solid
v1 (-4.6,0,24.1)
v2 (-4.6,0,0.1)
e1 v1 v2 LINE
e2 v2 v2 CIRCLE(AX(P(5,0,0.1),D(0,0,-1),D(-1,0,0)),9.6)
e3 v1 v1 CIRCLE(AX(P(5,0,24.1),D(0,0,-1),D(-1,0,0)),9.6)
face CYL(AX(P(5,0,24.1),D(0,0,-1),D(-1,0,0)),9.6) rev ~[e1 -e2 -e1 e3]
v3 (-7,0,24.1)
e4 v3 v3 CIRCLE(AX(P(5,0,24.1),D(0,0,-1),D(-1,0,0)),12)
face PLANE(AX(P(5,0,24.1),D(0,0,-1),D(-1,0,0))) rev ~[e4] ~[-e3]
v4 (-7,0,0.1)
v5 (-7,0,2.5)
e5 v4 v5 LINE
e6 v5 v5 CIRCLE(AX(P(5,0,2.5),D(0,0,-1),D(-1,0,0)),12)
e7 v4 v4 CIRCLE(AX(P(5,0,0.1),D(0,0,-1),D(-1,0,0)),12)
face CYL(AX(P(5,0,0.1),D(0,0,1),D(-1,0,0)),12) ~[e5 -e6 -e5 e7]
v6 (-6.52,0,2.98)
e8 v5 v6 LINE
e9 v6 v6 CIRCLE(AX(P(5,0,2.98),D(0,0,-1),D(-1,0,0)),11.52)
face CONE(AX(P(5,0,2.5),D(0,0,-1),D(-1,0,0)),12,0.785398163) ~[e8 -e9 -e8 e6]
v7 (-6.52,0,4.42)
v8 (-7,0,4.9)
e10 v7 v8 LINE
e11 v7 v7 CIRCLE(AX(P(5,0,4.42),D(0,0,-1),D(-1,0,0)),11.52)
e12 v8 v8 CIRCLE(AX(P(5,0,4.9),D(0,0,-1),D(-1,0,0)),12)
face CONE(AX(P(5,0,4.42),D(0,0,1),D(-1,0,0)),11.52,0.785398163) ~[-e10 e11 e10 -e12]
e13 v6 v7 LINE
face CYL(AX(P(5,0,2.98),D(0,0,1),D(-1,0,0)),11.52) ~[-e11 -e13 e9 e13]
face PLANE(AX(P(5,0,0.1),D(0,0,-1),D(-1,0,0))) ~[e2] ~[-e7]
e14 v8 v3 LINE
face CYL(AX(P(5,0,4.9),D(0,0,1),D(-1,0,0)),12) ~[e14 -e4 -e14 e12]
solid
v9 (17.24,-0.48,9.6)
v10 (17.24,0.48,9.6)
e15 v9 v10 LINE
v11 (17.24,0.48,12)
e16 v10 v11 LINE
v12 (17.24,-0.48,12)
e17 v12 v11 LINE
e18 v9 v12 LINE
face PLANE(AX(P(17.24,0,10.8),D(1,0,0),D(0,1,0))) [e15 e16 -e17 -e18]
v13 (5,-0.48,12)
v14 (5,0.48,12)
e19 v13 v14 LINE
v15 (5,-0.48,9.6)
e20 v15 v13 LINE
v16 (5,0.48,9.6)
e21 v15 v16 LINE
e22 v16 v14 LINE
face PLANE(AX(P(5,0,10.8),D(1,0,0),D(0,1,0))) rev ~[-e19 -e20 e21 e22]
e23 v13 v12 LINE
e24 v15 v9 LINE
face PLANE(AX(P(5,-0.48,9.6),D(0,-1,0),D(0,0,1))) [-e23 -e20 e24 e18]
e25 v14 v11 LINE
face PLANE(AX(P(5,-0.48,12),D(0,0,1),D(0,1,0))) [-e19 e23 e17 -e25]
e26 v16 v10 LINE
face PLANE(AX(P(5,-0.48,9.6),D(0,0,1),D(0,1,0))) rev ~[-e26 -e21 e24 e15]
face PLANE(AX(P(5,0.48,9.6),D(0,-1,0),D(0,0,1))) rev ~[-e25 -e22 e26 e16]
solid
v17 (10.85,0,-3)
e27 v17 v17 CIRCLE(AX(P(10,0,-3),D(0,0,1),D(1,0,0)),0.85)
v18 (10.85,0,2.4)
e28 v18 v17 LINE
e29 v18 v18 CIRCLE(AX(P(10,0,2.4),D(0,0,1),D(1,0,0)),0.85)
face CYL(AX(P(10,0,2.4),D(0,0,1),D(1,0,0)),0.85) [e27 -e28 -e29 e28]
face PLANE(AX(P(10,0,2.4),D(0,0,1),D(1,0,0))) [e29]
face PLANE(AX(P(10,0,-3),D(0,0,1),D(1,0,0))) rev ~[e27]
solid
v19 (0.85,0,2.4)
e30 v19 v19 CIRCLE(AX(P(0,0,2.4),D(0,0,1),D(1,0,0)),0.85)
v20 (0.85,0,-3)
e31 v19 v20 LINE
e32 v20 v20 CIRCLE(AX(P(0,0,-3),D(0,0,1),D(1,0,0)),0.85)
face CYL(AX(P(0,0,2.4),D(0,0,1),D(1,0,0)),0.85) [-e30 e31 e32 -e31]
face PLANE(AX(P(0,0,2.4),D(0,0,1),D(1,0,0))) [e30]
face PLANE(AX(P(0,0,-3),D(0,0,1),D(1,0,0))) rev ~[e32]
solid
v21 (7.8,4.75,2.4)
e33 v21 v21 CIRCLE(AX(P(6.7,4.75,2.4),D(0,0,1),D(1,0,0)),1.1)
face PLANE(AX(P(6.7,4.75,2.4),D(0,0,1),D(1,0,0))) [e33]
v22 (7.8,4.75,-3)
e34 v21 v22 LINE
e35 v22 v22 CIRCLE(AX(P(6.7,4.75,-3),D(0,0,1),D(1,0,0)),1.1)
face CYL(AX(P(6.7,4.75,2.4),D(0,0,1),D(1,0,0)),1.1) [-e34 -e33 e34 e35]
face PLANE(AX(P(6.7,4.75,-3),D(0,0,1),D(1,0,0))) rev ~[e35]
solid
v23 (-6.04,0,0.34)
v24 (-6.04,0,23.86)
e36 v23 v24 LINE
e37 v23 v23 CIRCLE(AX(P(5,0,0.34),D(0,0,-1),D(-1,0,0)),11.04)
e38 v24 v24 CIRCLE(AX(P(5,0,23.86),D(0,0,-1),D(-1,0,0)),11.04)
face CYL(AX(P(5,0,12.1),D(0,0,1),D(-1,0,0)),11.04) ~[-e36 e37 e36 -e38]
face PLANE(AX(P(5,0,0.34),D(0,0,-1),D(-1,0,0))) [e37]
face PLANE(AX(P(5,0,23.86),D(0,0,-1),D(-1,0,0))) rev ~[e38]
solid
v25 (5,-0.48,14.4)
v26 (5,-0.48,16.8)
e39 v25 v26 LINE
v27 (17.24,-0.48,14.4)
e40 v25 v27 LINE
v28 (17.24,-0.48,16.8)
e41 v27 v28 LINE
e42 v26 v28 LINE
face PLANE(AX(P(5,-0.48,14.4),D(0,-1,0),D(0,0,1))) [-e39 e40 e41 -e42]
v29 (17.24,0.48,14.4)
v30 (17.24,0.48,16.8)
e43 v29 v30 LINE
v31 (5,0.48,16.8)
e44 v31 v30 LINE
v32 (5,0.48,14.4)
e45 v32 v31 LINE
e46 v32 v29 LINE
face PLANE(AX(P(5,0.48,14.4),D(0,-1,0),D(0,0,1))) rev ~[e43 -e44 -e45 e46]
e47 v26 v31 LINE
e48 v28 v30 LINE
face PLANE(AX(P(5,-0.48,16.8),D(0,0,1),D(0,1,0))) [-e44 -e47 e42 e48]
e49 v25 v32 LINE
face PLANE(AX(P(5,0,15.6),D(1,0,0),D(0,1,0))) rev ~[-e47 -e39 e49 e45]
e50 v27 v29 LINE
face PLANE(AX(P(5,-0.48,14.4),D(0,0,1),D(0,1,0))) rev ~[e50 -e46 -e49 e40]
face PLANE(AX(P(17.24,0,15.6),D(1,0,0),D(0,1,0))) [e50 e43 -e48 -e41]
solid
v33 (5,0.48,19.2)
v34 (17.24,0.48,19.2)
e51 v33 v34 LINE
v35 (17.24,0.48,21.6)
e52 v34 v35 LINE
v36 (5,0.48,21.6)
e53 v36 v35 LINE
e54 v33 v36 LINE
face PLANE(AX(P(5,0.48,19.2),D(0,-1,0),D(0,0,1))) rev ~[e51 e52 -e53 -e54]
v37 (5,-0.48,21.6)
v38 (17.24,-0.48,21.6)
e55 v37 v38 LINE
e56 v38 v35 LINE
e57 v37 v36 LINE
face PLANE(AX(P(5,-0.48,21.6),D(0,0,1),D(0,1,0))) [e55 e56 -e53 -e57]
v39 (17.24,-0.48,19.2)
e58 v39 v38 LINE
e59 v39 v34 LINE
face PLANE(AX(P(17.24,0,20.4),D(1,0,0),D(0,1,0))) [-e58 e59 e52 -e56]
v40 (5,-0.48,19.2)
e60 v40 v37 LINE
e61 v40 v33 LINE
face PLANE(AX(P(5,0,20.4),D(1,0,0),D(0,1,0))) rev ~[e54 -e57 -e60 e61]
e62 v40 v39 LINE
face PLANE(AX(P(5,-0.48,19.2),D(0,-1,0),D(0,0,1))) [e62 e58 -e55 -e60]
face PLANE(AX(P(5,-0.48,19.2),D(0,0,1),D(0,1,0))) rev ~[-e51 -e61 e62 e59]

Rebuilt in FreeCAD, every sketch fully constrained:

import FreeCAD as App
import Part
import Sketcher
from FreeCAD import Vector

doc = App.newDocument("Part")
body = doc.addObject("PartDesign::Body", "Body")

sketch1 = body.newObject("Sketcher::SketchObject", "Sketch")
sketch1.AttachmentSupport = (doc.getObject("XZ_Plane"), [""])
sketch1.MapMode = "FlatFace"
sketch1.addGeometry(Part.LineSegment(Vector(-7, 2.5, 0), Vector(-7, 0.1, 0)), False)
sketch1.addGeometry(Part.LineSegment(Vector(-7, 0.1, 0), Vector(-4.6, 0.1, 0)), False)
sketch1.addGeometry(Part.LineSegment(Vector(-4.6, 0.1, 0), Vector(-4.6, 24.1, 0)), False)
sketch1.addGeometry(Part.LineSegment(Vector(-4.6, 24.1, 0), Vector(-7, 24.1, 0)), False)
sketch1.addGeometry(Part.LineSegment(Vector(-7, 24.1, 0), Vector(-7, 4.9, 0)), False)
sketch1.addGeometry(Part.LineSegment(Vector(-7, 4.9, 0), Vector(-6.5, 4.4, 0)), False)
sketch1.addGeometry(Part.LineSegment(Vector(-6.5, 4.4, 0), Vector(-6.5, 3, 0)), False)
sketch1.addGeometry(Part.LineSegment(Vector(-6.5, 3, 0), Vector(-7, 2.5, 0)), False)
sketch1.addGeometry(Part.LineSegment(Vector(5, 24.1, 0), Vector(5, 0.1, 0)), True)
sketch1.addConstraint(Sketcher.Constraint("Coincident", 0, 2, 1, 1))
sketch1.addConstraint(Sketcher.Constraint("Coincident", 1, 2, 2, 1))
sketch1.addConstraint(Sketcher.Constraint("Coincident", 2, 2, 3, 1))
sketch1.addConstraint(Sketcher.Constraint("Coincident", 3, 2, 4, 1))
sketch1.addConstraint(Sketcher.Constraint("Coincident", 4, 2, 5, 1))
sketch1.addConstraint(Sketcher.Constraint("Coincident", 5, 2, 6, 1))
sketch1.addConstraint(Sketcher.Constraint("Coincident", 6, 2, 7, 1))
sketch1.addConstraint(Sketcher.Constraint("Coincident", 7, 2, 0, 1))
sketch1.addConstraint(Sketcher.Constraint("Vertical", 0))
sketch1.addConstraint(Sketcher.Constraint("Horizontal", 1))
sketch1.addConstraint(Sketcher.Constraint("Vertical", 2))
sketch1.addConstraint(Sketcher.Constraint("Horizontal", 3))
sketch1.addConstraint(Sketcher.Constraint("Vertical", 4))
sketch1.addConstraint(Sketcher.Constraint("Vertical", 6))
sketch1.addConstraint(Sketcher.Constraint("Vertical", 8))
sketch1.addConstraint(Sketcher.Constraint("Perpendicular", 5, 7))
sketch1.addConstraint(Sketcher.Constraint("Horizontal", 3, 2, 8, 1))
sketch1.addConstraint(Sketcher.Constraint("Horizontal", 1, 2, 8, 2))
sketch1.addConstraint(Sketcher.Constraint("Vertical", 0, 2, 3, 2))
sketch1.addConstraint(Sketcher.Constraint("Equal", 3, 0))
sketch1.addConstraint(Sketcher.Constraint("Equal", 5, 7))
sketch1.addConstraint(Sketcher.Constraint("DistanceY", 2, 1, 2, 2, 24.0))
sketch1.addConstraint(Sketcher.Constraint("DistanceX", 1, 1, 1, 2, 2.4))
sketch1.addConstraint(Sketcher.Constraint("DistanceY", 4, 2, 4, 1, 19.2))
sketch1.addConstraint(Sketcher.Constraint("DistanceX", 0, 2, -1, 1, 7.0))
sketch1.addConstraint(Sketcher.Constraint("DistanceX", -1, 1, 8, 1, 5.0))
sketch1.addConstraint(Sketcher.Constraint("DistanceY", 6, 2, 6, 1, 1.44))
sketch1.addConstraint(Sketcher.Constraint("DistanceY", -1, 1, 0, 2, 0.1))
revolution = body.newObject("PartDesign::Revolution", "Revolution")
revolution.Profile = sketch1
revolution.ReferenceAxis = (sketch1, ["Axis0"])
revolution.Angle = 360
body2 = doc.addObject("PartDesign::Body", "Body001")

sketch2 = body2.newObject("Sketcher::SketchObject", "Sketch001")
sketch2.AttachmentSupport = (doc.getObject("XZ_Plane001"), [""])
sketch2.MapMode = "FlatFace"
sketch2.addGeometry(Part.LineSegment(Vector(-6, 24, 0), Vector(-6, 0, 0)), False)
sketch2.addGeometry(Part.LineSegment(Vector(-6, 0, 0), Vector(5, 0, 0)), False)
sketch2.addGeometry(Part.LineSegment(Vector(5, 0, 0), Vector(5, 24, 0)), False)
sketch2.addGeometry(Part.LineSegment(Vector(5, 24, 0), Vector(-6, 24, 0)), False)
sketch2.addGeometry(Part.LineSegment(Vector(5, 24, 0), Vector(5, 0, 0)), True)
sketch2.addConstraint(Sketcher.Constraint("Coincident", 0, 2, 1, 1))
sketch2.addConstraint(Sketcher.Constraint("Coincident", 1, 2, 2, 1))
sketch2.addConstraint(Sketcher.Constraint("Coincident", 2, 2, 3, 1))
sketch2.addConstraint(Sketcher.Constraint("Coincident", 3, 2, 0, 1))
sketch2.addConstraint(Sketcher.Constraint("Vertical", 0))
sketch2.addConstraint(Sketcher.Constraint("Horizontal", 1))
sketch2.addConstraint(Sketcher.Constraint("Vertical", 2))
sketch2.addConstraint(Sketcher.Constraint("Horizontal", 3))
sketch2.addConstraint(Sketcher.Constraint("Vertical", 4))
sketch2.addConstraint(Sketcher.Constraint("Coincident", 4, 1, 2, 2))
sketch2.addConstraint(Sketcher.Constraint("Horizontal", 0, 2, 4, 2))
sketch2.addConstraint(Sketcher.Constraint("DistanceX", -1, 1, 1, 2, 5.0))
sketch2.addConstraint(Sketcher.Constraint("DistanceX", 1, 1, 1, 2, 11.04))
sketch2.addConstraint(Sketcher.Constraint("DistanceY", 0, 2, 0, 1, 23.52))
sketch2.addConstraint(Sketcher.Constraint("DistanceY", -1, 1, 0, 2, 0.34))
revolution2 = body2.newObject("PartDesign::Revolution", "Revolution001")
revolution2.Profile = sketch2
revolution2.ReferenceAxis = (sketch2, ["Axis0"])
revolution2.Angle = 360
body3 = doc.addObject("PartDesign::Body", "Body002")
body3.AllowCompound = True

sketch3 = body3.newObject("Sketcher::SketchObject", "Sketch002")
sketch3.AttachmentSupport = (doc.getObject("XY_Plane002"), [""])
sketch3.MapMode = "FlatFace"
sketch3.AttachmentOffset = App.Placement(Vector(0, 0, 2.4), App.Rotation())
sketch3.addGeometry(Part.Circle(Vector(0, 0, 0), Vector(0, 0, 1), 0.8), False)
sketch3.addGeometry(Part.Circle(Vector(10, 0, 0), Vector(0, 0, 1), 0.8), False)
sketch3.addGeometry(Part.Circle(Vector(6.7, 4.8, 0), Vector(0, 0, 1), 1.1), False)
sketch3.addConstraint(Sketcher.Constraint("Coincident", 0, 3, -1, 1))
sketch3.addConstraint(Sketcher.Constraint("Equal", 0, 1))
sketch3.addConstraint(Sketcher.Constraint("PointOnObject", 1, 3, -1))
sketch3.addConstraint(Sketcher.Constraint("Diameter", 0, 1.7))
sketch3.addConstraint(Sketcher.Constraint("Diameter", 2, 2.2))
sketch3.addConstraint(Sketcher.Constraint("DistanceX", -1, 1, 1, 3, 10.0))
sketch3.addConstraint(Sketcher.Constraint("DistanceX", -1, 1, 2, 3, 6.7))
sketch3.addConstraint(Sketcher.Constraint("DistanceY", -1, 1, 2, 3, 4.75))
pad1 = body3.newObject("PartDesign::Pad", "Pad")
pad1.Profile = sketch3
pad1.Length = 5.4
pad1.Reversed = True
body4 = doc.addObject("PartDesign::Body", "Body003")
body4.AllowCompound = True

sketch4 = body4.newObject("Sketcher::SketchObject", "Sketch003")
sketch4.AttachmentSupport = (doc.getObject("YZ_Plane003"), [""])
sketch4.MapMode = "FlatFace"
sketch4.AttachmentOffset = App.Placement(Vector(0, 0, 5), App.Rotation())
sketch4.addGeometry(Part.LineSegment(Vector(-0.5, 12, 0), Vector(-0.5, 9.6, 0)), False)
sketch4.addGeometry(Part.LineSegment(Vector(-0.5, 9.6, 0), Vector(0.5, 9.6, 0)), False)
sketch4.addGeometry(Part.LineSegment(Vector(0.5, 9.6, 0), Vector(0.5, 12, 0)), False)
sketch4.addGeometry(Part.LineSegment(Vector(0.5, 12, 0), Vector(-0.5, 12, 0)), False)
sketch4.addGeometry(Part.LineSegment(Vector(-0.5, 16.8, 0), Vector(-0.5, 14.4, 0)), False)
sketch4.addGeometry(Part.LineSegment(Vector(-0.5, 14.4, 0), Vector(0.5, 14.4, 0)), False)
sketch4.addGeometry(Part.LineSegment(Vector(0.5, 14.4, 0), Vector(0.5, 16.8, 0)), False)
sketch4.addGeometry(Part.LineSegment(Vector(0.5, 16.8, 0), Vector(-0.5, 16.8, 0)), False)
sketch4.addGeometry(Part.LineSegment(Vector(-0.5, 21.6, 0), Vector(-0.5, 19.2, 0)), False)
sketch4.addGeometry(Part.LineSegment(Vector(-0.5, 19.2, 0), Vector(0.5, 19.2, 0)), False)
sketch4.addGeometry(Part.LineSegment(Vector(0.5, 19.2, 0), Vector(0.5, 21.6, 0)), False)
sketch4.addGeometry(Part.LineSegment(Vector(0.5, 21.6, 0), Vector(-0.5, 21.6, 0)), False)
sketch4.addConstraint(Sketcher.Constraint("Coincident", 0, 2, 1, 1))
sketch4.addConstraint(Sketcher.Constraint("Coincident", 1, 2, 2, 1))
sketch4.addConstraint(Sketcher.Constraint("Coincident", 2, 2, 3, 1))
sketch4.addConstraint(Sketcher.Constraint("Coincident", 3, 2, 0, 1))
sketch4.addConstraint(Sketcher.Constraint("Coincident", 4, 2, 5, 1))
sketch4.addConstraint(Sketcher.Constraint("Coincident", 5, 2, 6, 1))
sketch4.addConstraint(Sketcher.Constraint("Coincident", 6, 2, 7, 1))
sketch4.addConstraint(Sketcher.Constraint("Coincident", 7, 2, 4, 1))
sketch4.addConstraint(Sketcher.Constraint("Coincident", 8, 2, 9, 1))
sketch4.addConstraint(Sketcher.Constraint("Coincident", 9, 2, 10, 1))
sketch4.addConstraint(Sketcher.Constraint("Coincident", 10, 2, 11, 1))
sketch4.addConstraint(Sketcher.Constraint("Coincident", 11, 2, 8, 1))
sketch4.addConstraint(Sketcher.Constraint("Vertical", 0))
sketch4.addConstraint(Sketcher.Constraint("Horizontal", 1))
sketch4.addConstraint(Sketcher.Constraint("Vertical", 2))
sketch4.addConstraint(Sketcher.Constraint("Horizontal", 3))
sketch4.addConstraint(Sketcher.Constraint("Vertical", 4))
sketch4.addConstraint(Sketcher.Constraint("Horizontal", 5))
sketch4.addConstraint(Sketcher.Constraint("Vertical", 6))
sketch4.addConstraint(Sketcher.Constraint("Horizontal", 7))
sketch4.addConstraint(Sketcher.Constraint("Vertical", 8))
sketch4.addConstraint(Sketcher.Constraint("Horizontal", 9))
sketch4.addConstraint(Sketcher.Constraint("Vertical", 10))
sketch4.addConstraint(Sketcher.Constraint("Horizontal", 11))
sketch4.addConstraint(Sketcher.Constraint("Vertical", 3, 2, 4, 2))
sketch4.addConstraint(Sketcher.Constraint("Vertical", 2, 2, 5, 2))
sketch4.addConstraint(Sketcher.Constraint("Vertical", 7, 2, 8, 2))
sketch4.addConstraint(Sketcher.Constraint("Vertical", 6, 2, 9, 2))
sketch4.addConstraint(Sketcher.Constraint("Equal", 2, 4))
sketch4.addConstraint(Sketcher.Constraint("Equal", 6, 8))
sketch4.addConstraint(Sketcher.Constraint("DistanceY", 0, 2, 0, 1, 2.4))
sketch4.addConstraint(Sketcher.Constraint("DistanceY", -1, 1, 2, 2, 12.0))
sketch4.addConstraint(Sketcher.Constraint("DistanceX", 1, 1, 1, 2, 0.96))
sketch4.addConstraint(Sketcher.Constraint("DistanceY", -1, 1, 4, 2, 14.4))
sketch4.addConstraint(Sketcher.Constraint("DistanceY", -1, 1, 8, 2, 19.2))
sketch4.addConstraint(Sketcher.Constraint("DistanceX", 0, 2, -1, 1, 0.48))
pad2 = body4.newObject("PartDesign::Pad", "Pad001")
pad2.Profile = sketch4
pad2.Length = 12.24

doc.recompute()
